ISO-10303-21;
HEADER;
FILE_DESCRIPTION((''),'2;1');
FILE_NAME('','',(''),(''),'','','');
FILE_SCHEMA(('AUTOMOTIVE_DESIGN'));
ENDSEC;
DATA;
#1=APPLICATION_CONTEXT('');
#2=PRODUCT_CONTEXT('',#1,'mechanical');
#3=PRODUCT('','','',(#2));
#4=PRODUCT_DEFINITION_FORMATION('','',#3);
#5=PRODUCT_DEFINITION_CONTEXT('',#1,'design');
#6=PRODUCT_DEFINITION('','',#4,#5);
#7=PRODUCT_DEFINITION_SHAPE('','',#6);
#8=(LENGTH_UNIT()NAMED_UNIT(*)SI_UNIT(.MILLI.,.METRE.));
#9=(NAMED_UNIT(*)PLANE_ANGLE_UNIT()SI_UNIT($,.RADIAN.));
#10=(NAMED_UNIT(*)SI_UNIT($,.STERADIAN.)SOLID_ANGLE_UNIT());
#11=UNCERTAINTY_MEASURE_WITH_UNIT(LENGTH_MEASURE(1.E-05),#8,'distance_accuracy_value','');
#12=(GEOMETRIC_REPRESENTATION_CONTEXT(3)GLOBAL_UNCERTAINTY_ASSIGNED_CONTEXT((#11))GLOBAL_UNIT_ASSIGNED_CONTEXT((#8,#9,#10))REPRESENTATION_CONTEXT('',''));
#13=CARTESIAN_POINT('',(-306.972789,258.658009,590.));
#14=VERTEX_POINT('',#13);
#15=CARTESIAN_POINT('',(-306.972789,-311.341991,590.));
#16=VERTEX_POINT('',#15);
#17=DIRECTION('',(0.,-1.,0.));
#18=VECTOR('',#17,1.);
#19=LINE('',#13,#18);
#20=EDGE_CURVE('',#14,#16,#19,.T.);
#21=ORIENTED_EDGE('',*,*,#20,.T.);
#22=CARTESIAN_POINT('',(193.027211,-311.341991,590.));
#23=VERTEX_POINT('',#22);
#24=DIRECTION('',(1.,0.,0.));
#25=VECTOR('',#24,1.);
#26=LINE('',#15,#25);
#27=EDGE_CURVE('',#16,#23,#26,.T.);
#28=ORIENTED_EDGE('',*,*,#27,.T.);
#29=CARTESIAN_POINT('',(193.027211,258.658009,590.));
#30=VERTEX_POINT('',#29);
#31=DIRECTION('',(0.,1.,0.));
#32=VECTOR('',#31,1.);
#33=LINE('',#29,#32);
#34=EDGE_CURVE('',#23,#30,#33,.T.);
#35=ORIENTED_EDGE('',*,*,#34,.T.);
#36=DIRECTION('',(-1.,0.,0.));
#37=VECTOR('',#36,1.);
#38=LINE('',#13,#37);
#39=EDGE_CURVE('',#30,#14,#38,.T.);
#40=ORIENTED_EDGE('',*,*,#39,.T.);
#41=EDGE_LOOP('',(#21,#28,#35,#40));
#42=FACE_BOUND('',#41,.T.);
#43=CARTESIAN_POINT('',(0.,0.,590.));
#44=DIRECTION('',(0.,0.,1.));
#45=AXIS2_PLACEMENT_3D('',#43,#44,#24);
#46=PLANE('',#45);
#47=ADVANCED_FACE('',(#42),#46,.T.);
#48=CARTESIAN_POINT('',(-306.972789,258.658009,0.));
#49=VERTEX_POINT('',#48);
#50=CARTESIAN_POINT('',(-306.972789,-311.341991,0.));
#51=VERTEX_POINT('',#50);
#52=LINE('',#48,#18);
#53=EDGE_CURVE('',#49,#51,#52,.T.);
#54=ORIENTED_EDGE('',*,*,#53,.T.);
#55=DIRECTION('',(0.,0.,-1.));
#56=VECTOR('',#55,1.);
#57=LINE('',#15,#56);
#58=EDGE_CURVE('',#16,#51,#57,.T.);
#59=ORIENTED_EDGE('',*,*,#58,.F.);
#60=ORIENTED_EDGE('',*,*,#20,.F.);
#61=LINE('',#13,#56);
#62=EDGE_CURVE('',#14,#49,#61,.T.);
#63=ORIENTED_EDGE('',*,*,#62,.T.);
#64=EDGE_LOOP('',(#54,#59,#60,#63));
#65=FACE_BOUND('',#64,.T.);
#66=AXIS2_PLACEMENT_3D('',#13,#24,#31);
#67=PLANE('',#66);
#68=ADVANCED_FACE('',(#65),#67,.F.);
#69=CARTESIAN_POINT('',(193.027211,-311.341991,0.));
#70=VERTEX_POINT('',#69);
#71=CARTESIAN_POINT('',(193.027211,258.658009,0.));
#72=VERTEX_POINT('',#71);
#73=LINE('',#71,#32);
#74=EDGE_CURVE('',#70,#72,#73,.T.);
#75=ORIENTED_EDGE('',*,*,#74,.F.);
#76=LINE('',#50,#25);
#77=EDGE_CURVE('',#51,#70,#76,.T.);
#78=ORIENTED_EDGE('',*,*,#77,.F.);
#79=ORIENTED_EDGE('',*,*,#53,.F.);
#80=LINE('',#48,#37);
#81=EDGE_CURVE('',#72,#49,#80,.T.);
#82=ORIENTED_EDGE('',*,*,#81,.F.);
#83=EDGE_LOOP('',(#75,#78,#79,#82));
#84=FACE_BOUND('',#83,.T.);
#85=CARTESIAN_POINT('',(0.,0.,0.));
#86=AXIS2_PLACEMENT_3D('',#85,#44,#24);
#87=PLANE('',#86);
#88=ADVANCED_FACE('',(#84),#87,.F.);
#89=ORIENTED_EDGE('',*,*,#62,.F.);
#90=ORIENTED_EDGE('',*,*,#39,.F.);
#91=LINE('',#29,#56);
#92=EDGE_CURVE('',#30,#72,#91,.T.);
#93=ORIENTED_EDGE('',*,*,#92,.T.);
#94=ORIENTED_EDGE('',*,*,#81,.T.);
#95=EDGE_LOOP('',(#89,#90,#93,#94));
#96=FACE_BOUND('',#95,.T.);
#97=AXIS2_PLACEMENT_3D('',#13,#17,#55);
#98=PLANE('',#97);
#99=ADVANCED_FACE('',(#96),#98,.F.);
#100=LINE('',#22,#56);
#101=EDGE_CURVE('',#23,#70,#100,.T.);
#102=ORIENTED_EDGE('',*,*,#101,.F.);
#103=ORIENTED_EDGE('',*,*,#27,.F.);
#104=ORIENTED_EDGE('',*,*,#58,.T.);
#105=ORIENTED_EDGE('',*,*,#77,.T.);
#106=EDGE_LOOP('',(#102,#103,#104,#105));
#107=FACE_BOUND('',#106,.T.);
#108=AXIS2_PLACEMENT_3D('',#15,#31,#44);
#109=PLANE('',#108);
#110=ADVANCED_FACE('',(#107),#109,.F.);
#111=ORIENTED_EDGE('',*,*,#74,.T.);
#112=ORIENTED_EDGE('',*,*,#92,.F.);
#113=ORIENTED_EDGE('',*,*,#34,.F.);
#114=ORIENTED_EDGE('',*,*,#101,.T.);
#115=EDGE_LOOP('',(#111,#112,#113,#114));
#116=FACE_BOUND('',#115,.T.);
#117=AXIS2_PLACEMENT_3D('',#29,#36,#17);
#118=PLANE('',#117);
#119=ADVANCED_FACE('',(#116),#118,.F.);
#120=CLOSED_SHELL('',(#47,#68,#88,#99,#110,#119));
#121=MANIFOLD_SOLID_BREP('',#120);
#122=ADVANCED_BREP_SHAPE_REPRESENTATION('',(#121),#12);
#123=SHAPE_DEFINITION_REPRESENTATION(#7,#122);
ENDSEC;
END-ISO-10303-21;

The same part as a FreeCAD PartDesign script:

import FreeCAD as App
import Part
import Sketcher

doc = App.newDocument("Part")
body = doc.addObject("PartDesign::Body", "Body")

sketch1 = body.newObject("Sketcher::SketchObject", "Sketch")
sketch1.AttachmentSupport = (doc.getObject("XY_Plane"), [""])
sketch1.MapMode = "FlatFace"
sketch1.addGeometry([
    Part.LineSegment(App.Vector(-307, 259, 0), App.Vector(-307, -311, 0)),
    Part.LineSegment(App.Vector(-307, -311, 0), App.Vector(193, -311, 0)),
    Part.LineSegment(App.Vector(193, -311, 0), App.Vector(193, 259, 0)),
    Part.LineSegment(App.Vector(193, 259, 0), App.Vector(-307, 259, 0)),
], False)
sketch1.addConstraint([
    Sketcher.Constraint("Coincident", 0, 2, 1, 1),
    Sketcher.Constraint("Coincident", 1, 2, 2, 1),
    Sketcher.Constraint("Coincident", 2, 2, 3, 1),
    Sketcher.Constraint("Coincident", 3, 2, 0, 1),
    Sketcher.Constraint("Vertical", 0),
    Sketcher.Constraint("Horizontal", 1),
    Sketcher.Constraint("Vertical", 2),
    Sketcher.Constraint("Horizontal", 3),
    Sketcher.Constraint("DistanceX", 1, 1, 1, 2, 500.0),
    Sketcher.Constraint("DistanceY", 0, 2, 0, 1, 570.0),
    Sketcher.Constraint("DistanceX", 0, 2, -1, 1, 306.972789),
    Sketcher.Constraint("DistanceY", 0, 2, -1, 1, 311.341991),
])
pad1 = body.newObject("PartDesign::Pad", "Pad")
pad1.Profile = sketch1
pad1.Length = 590

doc.recompute()
